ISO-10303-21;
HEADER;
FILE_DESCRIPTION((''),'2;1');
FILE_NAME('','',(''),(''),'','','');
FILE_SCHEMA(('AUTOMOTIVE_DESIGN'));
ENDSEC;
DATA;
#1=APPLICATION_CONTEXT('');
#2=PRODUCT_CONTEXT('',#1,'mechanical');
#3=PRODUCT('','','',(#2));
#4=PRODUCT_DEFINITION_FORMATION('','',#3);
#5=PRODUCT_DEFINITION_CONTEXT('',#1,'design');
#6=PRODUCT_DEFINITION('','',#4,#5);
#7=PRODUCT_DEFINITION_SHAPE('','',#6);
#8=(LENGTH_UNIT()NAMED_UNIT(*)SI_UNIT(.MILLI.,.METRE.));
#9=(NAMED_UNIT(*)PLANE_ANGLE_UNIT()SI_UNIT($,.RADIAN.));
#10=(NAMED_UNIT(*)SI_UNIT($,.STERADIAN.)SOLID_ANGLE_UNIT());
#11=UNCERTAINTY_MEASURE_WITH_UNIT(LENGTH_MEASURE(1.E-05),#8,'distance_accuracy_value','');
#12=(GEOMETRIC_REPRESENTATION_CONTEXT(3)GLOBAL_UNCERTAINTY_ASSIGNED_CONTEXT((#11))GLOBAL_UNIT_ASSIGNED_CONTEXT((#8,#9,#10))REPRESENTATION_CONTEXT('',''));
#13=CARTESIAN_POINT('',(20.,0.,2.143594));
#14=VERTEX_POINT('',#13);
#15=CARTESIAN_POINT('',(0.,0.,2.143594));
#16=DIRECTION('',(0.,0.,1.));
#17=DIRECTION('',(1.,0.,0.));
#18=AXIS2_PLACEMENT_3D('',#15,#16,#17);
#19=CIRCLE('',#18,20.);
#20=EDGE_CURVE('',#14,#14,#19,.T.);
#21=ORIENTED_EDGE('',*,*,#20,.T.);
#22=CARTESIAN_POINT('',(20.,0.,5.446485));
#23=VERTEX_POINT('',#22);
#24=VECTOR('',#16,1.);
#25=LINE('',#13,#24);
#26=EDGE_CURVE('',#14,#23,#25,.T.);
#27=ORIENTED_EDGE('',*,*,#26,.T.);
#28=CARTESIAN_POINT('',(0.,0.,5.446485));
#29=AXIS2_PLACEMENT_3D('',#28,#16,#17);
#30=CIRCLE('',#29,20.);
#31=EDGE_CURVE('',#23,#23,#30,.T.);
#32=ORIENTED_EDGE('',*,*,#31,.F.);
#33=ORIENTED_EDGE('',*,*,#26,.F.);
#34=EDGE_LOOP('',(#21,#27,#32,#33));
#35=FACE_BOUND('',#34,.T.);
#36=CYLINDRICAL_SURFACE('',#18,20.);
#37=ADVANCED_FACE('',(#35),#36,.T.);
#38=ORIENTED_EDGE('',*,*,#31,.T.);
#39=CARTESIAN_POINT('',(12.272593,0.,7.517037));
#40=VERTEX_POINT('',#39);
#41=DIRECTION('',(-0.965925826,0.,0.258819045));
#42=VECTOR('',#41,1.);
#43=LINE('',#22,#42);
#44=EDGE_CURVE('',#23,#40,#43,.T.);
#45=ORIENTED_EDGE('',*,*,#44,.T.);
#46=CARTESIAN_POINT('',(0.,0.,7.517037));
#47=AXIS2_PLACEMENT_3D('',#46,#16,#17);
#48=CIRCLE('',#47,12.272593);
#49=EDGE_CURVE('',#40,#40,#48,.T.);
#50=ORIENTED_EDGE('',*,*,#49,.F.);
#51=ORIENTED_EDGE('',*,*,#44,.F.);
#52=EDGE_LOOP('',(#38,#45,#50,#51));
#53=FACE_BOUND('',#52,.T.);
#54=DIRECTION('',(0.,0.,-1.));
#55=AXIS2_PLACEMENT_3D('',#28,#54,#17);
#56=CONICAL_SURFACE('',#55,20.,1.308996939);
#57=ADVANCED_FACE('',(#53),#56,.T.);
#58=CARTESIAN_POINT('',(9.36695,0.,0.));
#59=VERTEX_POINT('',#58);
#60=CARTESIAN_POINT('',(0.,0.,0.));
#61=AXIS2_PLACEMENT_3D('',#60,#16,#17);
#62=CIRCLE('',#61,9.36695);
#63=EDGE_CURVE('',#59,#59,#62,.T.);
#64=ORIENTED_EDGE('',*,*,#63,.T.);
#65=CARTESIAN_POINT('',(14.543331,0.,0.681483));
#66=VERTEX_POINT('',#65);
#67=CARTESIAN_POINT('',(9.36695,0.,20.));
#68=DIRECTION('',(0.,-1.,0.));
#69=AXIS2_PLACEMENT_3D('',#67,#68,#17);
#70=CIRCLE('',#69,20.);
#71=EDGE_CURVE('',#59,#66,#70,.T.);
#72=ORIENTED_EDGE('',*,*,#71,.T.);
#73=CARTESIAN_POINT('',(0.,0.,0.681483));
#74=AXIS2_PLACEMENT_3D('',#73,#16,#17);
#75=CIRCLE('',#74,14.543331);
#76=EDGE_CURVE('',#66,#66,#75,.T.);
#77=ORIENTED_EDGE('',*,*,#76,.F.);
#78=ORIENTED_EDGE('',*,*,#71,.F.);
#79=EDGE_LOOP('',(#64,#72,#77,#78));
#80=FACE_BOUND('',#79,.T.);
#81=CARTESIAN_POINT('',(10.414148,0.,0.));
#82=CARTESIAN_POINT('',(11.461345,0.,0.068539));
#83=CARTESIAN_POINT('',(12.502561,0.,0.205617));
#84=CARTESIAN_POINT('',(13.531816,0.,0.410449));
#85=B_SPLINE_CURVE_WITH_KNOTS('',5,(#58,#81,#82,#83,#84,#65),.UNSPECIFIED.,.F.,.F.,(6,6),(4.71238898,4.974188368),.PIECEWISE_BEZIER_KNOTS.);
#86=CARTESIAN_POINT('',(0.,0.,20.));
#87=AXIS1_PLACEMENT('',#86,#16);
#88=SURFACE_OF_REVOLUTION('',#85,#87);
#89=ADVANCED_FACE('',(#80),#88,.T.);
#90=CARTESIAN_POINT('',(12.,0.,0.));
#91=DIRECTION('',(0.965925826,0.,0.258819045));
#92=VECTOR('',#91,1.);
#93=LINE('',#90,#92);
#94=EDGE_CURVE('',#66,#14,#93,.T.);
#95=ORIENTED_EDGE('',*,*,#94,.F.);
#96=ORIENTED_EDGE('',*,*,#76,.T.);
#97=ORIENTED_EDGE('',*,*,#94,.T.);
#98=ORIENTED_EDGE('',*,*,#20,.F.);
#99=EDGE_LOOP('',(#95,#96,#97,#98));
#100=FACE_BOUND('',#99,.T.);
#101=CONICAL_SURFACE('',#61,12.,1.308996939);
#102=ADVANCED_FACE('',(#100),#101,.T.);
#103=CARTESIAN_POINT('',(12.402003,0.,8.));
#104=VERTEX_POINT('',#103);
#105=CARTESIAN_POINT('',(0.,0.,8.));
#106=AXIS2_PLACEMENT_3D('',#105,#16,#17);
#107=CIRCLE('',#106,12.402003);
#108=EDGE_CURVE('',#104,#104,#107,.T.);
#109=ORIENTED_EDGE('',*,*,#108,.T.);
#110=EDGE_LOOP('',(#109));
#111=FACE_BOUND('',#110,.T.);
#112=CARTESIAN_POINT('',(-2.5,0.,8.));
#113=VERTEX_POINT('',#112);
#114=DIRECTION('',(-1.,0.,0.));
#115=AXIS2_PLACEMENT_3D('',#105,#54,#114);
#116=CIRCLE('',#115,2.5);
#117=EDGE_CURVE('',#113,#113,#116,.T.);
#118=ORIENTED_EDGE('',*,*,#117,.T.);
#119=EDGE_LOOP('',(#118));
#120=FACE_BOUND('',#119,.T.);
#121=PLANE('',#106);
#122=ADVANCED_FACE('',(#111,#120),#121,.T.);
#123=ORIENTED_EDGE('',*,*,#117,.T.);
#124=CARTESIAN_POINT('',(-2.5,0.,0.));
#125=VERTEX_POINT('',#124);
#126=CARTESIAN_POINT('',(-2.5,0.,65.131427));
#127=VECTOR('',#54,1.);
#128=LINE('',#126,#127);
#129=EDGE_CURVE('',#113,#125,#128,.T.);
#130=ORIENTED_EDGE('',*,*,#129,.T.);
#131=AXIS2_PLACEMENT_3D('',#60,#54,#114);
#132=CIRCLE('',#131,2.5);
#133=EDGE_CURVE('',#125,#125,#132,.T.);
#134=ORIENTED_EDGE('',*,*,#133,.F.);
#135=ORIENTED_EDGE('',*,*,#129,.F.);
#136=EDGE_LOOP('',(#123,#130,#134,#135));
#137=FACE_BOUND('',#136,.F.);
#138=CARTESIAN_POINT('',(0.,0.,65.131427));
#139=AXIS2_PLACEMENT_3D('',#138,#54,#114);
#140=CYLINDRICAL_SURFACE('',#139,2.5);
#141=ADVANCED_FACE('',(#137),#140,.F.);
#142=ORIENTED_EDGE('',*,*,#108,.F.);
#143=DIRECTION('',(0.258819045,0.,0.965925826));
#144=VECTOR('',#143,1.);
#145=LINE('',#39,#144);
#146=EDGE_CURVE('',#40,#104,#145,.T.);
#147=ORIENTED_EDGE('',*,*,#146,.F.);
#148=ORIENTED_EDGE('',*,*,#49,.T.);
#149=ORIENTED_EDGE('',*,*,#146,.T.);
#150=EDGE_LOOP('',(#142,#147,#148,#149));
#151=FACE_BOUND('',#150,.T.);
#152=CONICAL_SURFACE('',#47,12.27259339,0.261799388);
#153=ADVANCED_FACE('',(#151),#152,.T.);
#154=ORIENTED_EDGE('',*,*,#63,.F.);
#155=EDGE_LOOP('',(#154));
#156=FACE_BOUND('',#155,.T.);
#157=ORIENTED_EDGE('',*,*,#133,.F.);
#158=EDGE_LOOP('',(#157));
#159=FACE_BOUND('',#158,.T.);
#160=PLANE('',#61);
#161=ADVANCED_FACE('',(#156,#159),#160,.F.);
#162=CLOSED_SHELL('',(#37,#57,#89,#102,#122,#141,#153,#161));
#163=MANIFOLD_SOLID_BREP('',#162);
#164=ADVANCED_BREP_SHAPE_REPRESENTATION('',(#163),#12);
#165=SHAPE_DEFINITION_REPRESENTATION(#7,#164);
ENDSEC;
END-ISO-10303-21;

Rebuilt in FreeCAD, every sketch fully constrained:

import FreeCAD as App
import Part
import Sketcher
Q = App.Units.Quantity


def edges_at(feature, points):
    """Names of the edges that pass closest to the given points."""
    edges = feature.Shape.Edges
    near = lambda p: min(range(len(edges)), key=lambda i: edges[i].distToShape(Part.Vertex(*p))[0])
    return sorted({f"Edge{near(p) + 1}" for p in points})

doc = App.newDocument("Part")
body = doc.addObject("PartDesign::Body", "Body")

sketch1 = body.newObject("Sketcher::SketchObject", "Sketch")
sketch1.AttachmentSupport = (doc.getObject("XZ_Plane"), [""])
sketch1.MapMode = "FlatFace"
sketch1.addGeometry([
    Part.LineSegment(App.Vector(0, 8, 0), App.Vector(0, 0, 0)),
    Part.LineSegment(App.Vector(0, 0, 0), App.Vector(12, 0, 0)),
    Part.LineSegment(App.Vector(12, 0, 0), App.Vector(20, 2.143594, 0)),
    Part.LineSegment(App.Vector(20, 2.143594, 0), App.Vector(20, 5.446485, 0)),
    Part.LineSegment(App.Vector(20, 5.446485, 0), App.Vector(12.272593, 7.517037, 0)),
    Part.LineSegment(App.Vector(12.272593, 7.517037, 0), App.Vector(12.402003, 8, 0)),
    Part.LineSegment(App.Vector(12.402003, 8, 0), App.Vector(0, 8, 0)),
], False)
sketch1.addConstraint([
    Sketcher.Constraint("Coincident", 0, 2, 1, 1),
    Sketcher.Constraint("Coincident", 1, 2, 2, 1),
    Sketcher.Constraint("Coincident", 2, 2, 3, 1),
    Sketcher.Constraint("Coincident", 3, 2, 4, 1),
    Sketcher.Constraint("Coincident", 4, 2, 5, 1),
    Sketcher.Constraint("Coincident", 5, 2, 6, 1),
    Sketcher.Constraint("Coincident", 6, 2, 0, 1),
    Sketcher.Constraint("Vertical", 0),
    Sketcher.Constraint("Horizontal", 1),
    Sketcher.Constraint("Vertical", 3),
    Sketcher.Constraint("Horizontal", 6),
    Sketcher.Constraint("Coincident", 0, 2, -1, 1),
    Sketcher.Constraint("Perpendicular", 4, 5),
    Sketcher.Constraint("DistanceX", 1, 1, 1, 2, 12.0),
    Sketcher.Constraint("DistanceY", 0, 2, 0, 1, 8.0),
    Sketcher.Constraint("Angle", 2, Q("15 deg")),
    Sketcher.Constraint("Angle", 4, Q("165 deg")),
    Sketcher.Constraint("Distance", 4, 8.0),
    Sketcher.Constraint("DistanceX", -1, 1, 2, 2, 20.0),
    Sketcher.Constraint("Distance", 5, 0.5),
])
revolution = body.newObject("PartDesign::Revolution", "Revolution")
revolution.Profile = sketch1
revolution.ReferenceAxis = (sketch1, ["V_Axis"])
revolution.Angle = 360

sketch2 = body.newObject("Sketcher::SketchObject", "Sketch001")
sketch2.AttachmentSupport = (doc.getObject("XY_Plane"), [""])
sketch2.MapMode = "FlatFace"
sketch2.AttachmentOffset = App.Placement(App.Vector(0, 0, 8), App.Rotation())
sketch2.addGeometry(Part.Circle(App.Vector(0, 0, 0), App.Vector(0, 0, 1), 2.5), False)
sketch2.addConstraint([
    Sketcher.Constraint("Coincident", 0, 3, -1, 1),
    Sketcher.Constraint("Diameter", 0, 5.0),
])
doc.recompute()
hole = body.newObject("PartDesign::Hole", "Hole")
hole.Profile = sketch2
hole.ThreadType = "None"
hole.Diameter = 5
hole.DepthType = "ThroughAll"
doc.recompute()

fillet = body.newObject("PartDesign::Fillet", "Fillet")
fillet.Base = (hole, edges_at(hole, [(-12, 0, 0)]))
fillet.Radius = 20

doc.recompute()
